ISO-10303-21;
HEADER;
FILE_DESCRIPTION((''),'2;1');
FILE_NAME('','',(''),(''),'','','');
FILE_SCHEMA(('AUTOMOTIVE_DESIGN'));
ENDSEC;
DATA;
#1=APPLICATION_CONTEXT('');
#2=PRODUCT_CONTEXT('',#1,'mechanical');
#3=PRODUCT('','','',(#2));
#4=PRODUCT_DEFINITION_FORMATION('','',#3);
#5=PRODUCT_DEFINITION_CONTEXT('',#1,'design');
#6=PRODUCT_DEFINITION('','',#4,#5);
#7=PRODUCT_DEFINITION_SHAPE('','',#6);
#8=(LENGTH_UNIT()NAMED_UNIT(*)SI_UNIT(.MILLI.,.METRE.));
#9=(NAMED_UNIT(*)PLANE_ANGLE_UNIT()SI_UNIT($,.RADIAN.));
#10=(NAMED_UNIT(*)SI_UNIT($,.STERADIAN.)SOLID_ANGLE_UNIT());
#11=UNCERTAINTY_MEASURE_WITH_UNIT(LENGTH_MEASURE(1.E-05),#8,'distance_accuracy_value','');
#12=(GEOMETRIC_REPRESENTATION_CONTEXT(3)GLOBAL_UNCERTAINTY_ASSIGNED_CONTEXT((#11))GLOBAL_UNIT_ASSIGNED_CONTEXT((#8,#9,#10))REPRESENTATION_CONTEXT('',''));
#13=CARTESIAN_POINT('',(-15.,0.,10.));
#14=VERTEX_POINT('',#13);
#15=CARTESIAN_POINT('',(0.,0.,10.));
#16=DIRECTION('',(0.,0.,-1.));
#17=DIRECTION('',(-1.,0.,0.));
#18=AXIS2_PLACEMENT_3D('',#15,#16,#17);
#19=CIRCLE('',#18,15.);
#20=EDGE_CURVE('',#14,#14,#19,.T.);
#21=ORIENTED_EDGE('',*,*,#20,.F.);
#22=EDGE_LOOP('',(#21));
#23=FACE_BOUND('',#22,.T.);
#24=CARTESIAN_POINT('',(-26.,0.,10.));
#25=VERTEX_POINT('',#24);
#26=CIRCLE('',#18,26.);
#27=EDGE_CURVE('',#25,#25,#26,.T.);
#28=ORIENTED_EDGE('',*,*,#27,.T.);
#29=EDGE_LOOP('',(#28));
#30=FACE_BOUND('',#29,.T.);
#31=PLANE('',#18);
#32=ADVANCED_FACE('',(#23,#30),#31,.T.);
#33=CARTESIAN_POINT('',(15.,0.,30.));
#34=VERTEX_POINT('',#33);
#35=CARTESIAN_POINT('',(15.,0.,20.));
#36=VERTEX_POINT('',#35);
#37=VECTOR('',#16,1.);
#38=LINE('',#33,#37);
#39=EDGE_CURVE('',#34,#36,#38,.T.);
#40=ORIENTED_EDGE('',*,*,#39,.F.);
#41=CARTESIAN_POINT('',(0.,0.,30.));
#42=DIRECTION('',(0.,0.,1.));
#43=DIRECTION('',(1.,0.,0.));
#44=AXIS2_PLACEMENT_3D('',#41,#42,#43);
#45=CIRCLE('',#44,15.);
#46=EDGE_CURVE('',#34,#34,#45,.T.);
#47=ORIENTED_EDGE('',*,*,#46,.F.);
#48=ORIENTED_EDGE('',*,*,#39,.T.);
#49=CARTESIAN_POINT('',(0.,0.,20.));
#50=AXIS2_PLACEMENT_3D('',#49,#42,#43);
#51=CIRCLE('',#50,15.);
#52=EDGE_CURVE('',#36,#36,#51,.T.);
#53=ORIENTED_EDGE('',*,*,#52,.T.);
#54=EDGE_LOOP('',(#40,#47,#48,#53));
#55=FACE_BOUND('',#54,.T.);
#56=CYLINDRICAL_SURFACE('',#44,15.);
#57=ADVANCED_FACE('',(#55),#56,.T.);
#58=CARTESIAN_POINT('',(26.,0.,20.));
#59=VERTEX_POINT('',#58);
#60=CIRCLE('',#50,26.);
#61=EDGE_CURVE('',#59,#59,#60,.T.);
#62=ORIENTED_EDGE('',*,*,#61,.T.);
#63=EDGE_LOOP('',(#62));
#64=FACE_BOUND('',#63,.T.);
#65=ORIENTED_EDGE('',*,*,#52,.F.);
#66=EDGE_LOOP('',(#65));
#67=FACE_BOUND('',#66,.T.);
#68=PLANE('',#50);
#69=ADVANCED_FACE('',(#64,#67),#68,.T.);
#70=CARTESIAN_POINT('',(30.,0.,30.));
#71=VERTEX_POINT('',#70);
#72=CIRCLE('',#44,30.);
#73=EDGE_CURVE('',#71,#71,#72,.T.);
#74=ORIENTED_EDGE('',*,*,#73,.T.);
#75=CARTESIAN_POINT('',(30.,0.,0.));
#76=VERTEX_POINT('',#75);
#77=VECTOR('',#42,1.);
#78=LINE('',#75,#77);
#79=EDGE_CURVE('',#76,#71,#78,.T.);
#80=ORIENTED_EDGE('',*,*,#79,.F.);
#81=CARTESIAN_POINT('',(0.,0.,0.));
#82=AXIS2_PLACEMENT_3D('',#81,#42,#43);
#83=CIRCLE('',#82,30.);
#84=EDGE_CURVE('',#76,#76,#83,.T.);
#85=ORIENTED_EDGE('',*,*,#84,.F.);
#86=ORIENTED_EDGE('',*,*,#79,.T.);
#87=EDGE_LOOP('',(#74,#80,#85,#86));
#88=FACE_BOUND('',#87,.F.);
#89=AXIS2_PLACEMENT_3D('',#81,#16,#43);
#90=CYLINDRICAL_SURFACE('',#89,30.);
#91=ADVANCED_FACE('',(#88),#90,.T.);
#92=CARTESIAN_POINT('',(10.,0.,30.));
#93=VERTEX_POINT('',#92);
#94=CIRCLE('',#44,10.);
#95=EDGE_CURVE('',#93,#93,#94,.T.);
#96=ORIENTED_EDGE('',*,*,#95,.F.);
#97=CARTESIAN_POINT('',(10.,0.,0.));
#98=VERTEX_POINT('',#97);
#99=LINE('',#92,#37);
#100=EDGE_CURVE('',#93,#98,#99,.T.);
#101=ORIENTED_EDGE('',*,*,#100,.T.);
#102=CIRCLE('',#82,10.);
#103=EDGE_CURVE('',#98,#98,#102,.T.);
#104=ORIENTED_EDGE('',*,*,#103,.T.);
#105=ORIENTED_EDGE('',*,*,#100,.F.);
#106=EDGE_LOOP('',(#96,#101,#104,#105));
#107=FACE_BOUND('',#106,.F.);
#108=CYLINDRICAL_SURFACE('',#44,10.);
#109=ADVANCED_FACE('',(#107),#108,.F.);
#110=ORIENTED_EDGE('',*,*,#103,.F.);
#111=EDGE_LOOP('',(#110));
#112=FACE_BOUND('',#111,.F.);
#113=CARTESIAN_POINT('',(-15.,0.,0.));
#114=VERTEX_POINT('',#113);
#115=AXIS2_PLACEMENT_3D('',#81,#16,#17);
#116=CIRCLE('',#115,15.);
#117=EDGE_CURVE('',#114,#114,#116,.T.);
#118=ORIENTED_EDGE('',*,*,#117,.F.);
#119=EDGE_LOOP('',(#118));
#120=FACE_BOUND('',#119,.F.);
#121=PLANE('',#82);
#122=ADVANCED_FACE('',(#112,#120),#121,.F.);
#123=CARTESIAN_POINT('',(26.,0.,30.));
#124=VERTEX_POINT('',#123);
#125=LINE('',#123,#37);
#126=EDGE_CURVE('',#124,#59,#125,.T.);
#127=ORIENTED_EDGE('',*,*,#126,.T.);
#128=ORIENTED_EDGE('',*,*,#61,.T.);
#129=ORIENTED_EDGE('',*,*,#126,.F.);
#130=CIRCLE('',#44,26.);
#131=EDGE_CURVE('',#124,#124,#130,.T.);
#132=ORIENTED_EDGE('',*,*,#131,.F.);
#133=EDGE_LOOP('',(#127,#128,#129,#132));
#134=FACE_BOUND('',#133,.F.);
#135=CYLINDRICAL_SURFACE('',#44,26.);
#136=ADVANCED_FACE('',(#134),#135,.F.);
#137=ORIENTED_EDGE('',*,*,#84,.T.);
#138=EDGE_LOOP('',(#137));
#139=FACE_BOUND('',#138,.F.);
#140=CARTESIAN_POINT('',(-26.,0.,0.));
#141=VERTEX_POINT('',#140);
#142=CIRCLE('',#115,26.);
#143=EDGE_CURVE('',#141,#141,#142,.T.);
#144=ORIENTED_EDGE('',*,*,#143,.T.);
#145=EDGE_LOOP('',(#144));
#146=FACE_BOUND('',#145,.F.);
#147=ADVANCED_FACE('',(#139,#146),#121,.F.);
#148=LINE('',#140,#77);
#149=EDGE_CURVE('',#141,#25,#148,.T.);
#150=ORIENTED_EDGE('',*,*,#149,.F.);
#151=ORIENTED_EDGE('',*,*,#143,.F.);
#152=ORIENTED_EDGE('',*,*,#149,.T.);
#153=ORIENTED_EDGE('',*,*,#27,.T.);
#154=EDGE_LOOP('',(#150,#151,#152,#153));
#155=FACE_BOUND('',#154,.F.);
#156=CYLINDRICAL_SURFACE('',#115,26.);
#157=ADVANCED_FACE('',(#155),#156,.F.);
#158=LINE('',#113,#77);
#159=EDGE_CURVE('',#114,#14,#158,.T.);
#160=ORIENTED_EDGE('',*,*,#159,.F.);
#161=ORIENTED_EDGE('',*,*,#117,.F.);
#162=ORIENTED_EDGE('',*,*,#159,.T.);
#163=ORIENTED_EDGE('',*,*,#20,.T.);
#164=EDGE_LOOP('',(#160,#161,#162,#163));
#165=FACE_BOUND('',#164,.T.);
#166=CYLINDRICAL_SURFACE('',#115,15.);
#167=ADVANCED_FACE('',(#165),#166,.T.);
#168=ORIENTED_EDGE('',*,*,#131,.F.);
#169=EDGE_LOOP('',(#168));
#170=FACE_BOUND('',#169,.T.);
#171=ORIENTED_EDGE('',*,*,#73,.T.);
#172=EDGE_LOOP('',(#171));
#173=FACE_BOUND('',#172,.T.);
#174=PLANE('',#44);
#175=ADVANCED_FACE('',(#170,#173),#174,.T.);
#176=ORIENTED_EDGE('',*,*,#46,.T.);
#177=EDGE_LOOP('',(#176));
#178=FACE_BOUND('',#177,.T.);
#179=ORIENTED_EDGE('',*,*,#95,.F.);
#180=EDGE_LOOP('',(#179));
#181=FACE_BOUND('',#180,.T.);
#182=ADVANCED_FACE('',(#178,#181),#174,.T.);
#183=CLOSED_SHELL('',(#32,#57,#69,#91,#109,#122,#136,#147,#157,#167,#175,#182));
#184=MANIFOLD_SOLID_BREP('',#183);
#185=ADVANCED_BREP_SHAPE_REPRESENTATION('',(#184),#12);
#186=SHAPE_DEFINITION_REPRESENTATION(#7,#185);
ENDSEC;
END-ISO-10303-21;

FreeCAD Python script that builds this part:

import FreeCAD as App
import Part
import Sketcher
from FreeCAD import Vector

doc = App.newDocument("Part")
params = doc.addObject("Spreadsheet::Sheet", "Params")
for row, (alias, value) in enumerate([
    ("sketch1_diameter", "60 mm"),
    ("pad1_length", "30 mm"),
    ("sketch2_diameter", "52 mm"),
    ("sketch2_diameter2", "30 mm"),
    ("pocket1_length", "10 mm"),
    ("sketch3_diameter", "52 mm"),
    ("sketch3_diameter2", "30 mm"),
    ("pocket2_length", "10 mm"),
    ("sketch4_diameter", "20 mm"),
    ("pocket3_length", "30 mm"),
], start=1):
    params.set(f"A{row}", alias)
    params.set(f"B{row}", "=" + value)
    params.setAlias(f"B{row}", alias)

body = doc.addObject("PartDesign::Body", "Body")

sketch1 = body.newObject("Sketcher::SketchObject", "Sketch")
sketch1.AttachmentSupport = (doc.getObject("XY_Plane"), [""])
sketch1.MapMode = "FlatFace"
sketch1.addGeometry(Part.Circle(Vector(0, 0, 0), Vector(0, 0, 1), 30), False)
sketch1.addConstraint([
    Sketcher.Constraint("Coincident", 0, 3, -1, 1),
    Sketcher.Constraint("Diameter", 0, 60.0),
])
sketch1.setExpression("Constraints[1]", "Params.sketch1_diameter")
pad1 = body.newObject("PartDesign::Pad", "Pad")
pad1.Profile = sketch1
pad1.setExpression("Length", "Params.pad1_length")

sketch2 = body.newObject("Sketcher::SketchObject", "Sketch001")
sketch2.AttachmentSupport = (doc.getObject("XY_Plane"), [""])
sketch2.MapMode = "FlatFace"
sketch2.AttachmentOffset = App.Placement(Vector(0, 0, 30), App.Rotation())
sketch2.addGeometry([
    Part.Circle(Vector(0, 0, 0), Vector(0, 0, 1), 26),
    Part.Circle(Vector(0, 0, 0), Vector(0, 0, 1), 15),
], False)
sketch2.addConstraint([
    Sketcher.Constraint("Coincident", 0, 3, -1, 1),
    Sketcher.Constraint("Coincident", 1, 3, -1, 1),
    Sketcher.Constraint("Diameter", 0, 52.0),
    Sketcher.Constraint("Diameter", 1, 30.0),
])
sketch2.setExpression("Constraints[2]", "Params.sketch2_diameter")
sketch2.setExpression("Constraints[3]", "Params.sketch2_diameter2")
pocket1 = body.newObject("PartDesign::Pocket", "Pocket")
pocket1.Profile = sketch2
pocket1.setExpression("Length", "Params.pocket1_length")

sketch3 = body.newObject("Sketcher::SketchObject", "Sketch002")
sketch3.AttachmentSupport = (doc.getObject("XY_Plane"), [""])
sketch3.MapMode = "FlatFace"
sketch3.addGeometry([
    Part.Circle(Vector(0, 0, 0), Vector(0, 0, 1), 26),
    Part.Circle(Vector(0, 0, 0), Vector(0, 0, 1), 15),
], False)
sketch3.addConstraint([
    Sketcher.Constraint("Coincident", 0, 3, -1, 1),
    Sketcher.Constraint("Coincident", 1, 3, -1, 1),
    Sketcher.Constraint("Diameter", 0, 52.0),
    Sketcher.Constraint("Diameter", 1, 30.0),
])
sketch3.setExpression("Constraints[2]", "Params.sketch3_diameter")
sketch3.setExpression("Constraints[3]", "Params.sketch3_diameter2")
pocket2 = body.newObject("PartDesign::Pocket", "Pocket001")
pocket2.Profile = sketch3
pocket2.setExpression("Length", "Params.pocket2_length")
pocket2.Reversed = True

sketch4 = body.newObject("Sketcher::SketchObject", "Sketch003")
sketch4.AttachmentSupport = (doc.getObject("XY_Plane"), [""])
sketch4.MapMode = "FlatFace"
sketch4.AttachmentOffset = App.Placement(Vector(0, 0, 30), App.Rotation())
sketch4.addGeometry(Part.Circle(Vector(0, 0, 0), Vector(0, 0, 1), 10), False)
sketch4.addConstraint([
    Sketcher.Constraint("Coincident", 0, 3, -1, 1),
    Sketcher.Constraint("Diameter", 0, 20.0),
])
sketch4.setExpression("Constraints[1]", "Params.sketch4_diameter")
pocket3 = body.newObject("PartDesign::Pocket", "Pocket002")
pocket3.Profile = sketch4
pocket3.setExpression("Length", "Params.pocket3_length")

doc.recompute()
